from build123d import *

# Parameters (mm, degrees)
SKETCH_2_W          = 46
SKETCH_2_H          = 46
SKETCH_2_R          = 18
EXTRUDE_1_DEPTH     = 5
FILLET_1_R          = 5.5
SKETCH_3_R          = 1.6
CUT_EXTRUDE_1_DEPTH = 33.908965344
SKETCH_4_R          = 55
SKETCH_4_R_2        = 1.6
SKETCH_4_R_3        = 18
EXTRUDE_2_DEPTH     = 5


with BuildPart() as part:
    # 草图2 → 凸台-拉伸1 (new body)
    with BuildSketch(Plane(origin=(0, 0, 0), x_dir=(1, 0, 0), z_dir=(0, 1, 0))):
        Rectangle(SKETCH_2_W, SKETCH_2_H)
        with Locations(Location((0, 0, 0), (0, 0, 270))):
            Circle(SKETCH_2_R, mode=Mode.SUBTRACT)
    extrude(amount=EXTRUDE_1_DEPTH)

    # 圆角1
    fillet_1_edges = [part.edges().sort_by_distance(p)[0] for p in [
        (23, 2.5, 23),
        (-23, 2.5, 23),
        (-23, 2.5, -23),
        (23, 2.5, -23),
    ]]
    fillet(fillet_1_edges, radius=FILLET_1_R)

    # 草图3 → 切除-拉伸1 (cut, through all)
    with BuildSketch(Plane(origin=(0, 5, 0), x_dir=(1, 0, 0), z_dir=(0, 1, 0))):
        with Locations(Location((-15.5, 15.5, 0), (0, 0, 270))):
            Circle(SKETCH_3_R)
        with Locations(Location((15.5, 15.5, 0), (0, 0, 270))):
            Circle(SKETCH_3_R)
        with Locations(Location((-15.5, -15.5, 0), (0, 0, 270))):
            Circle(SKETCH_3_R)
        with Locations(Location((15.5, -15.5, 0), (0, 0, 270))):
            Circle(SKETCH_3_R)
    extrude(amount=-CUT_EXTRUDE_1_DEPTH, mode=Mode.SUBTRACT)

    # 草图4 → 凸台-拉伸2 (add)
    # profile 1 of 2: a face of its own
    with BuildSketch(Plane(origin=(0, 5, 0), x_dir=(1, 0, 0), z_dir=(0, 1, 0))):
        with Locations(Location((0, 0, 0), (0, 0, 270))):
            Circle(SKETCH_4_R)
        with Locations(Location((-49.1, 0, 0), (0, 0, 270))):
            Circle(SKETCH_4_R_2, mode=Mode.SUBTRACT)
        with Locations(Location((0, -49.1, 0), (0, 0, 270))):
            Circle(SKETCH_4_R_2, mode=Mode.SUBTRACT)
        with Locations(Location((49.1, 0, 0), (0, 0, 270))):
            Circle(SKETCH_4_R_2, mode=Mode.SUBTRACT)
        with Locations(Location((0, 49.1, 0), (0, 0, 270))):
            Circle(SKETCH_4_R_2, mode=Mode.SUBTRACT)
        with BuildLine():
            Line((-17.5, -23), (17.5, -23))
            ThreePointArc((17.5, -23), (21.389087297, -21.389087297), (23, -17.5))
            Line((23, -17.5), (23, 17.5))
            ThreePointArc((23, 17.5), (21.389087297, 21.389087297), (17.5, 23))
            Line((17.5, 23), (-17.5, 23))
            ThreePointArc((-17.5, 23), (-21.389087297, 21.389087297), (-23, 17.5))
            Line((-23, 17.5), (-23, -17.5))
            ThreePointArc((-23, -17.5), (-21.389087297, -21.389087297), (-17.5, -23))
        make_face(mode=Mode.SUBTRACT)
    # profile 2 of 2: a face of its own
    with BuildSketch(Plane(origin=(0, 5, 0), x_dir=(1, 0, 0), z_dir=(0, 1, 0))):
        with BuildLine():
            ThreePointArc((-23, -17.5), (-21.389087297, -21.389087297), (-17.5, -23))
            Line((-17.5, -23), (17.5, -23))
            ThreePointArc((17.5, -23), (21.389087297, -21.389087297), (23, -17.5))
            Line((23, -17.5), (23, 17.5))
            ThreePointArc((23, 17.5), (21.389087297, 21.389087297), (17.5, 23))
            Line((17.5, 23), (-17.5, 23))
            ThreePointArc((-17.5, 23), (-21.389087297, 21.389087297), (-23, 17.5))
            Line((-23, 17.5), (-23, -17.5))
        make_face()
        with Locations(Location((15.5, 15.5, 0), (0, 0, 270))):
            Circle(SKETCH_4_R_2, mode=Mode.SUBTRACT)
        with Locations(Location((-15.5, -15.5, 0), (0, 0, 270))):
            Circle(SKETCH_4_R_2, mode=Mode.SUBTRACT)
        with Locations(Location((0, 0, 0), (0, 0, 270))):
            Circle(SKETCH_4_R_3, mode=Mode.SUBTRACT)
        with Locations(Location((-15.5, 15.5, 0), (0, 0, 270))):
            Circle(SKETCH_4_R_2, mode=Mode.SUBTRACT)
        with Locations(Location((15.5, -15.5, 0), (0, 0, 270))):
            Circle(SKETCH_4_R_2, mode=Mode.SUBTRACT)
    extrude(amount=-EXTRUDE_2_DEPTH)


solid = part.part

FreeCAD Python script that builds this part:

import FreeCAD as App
import Part
import Sketcher
Q = App.Units.Quantity


def edges_at(feature, points):
    """Names of the edges that pass closest to the given points."""
    edges = feature.Shape.Edges
    near = lambda p: min(range(len(edges)), key=lambda i: edges[i].distToShape(Part.Vertex(*p))[0])
    return sorted({f"Edge{near(p) + 1}" for p in points})

doc = App.newDocument("Part")
params = doc.addObject("Spreadsheet::Sheet", "Params")
for row, (alias, value) in enumerate([
    ("sketch1_diameter", "36 mm"),
    ("sketch1_width", "46 mm"),
    ("pad1_length", "5 mm"),
    ("fillet_radius", "5.5 mm"),
    ("sketch2_diameter", "3.2 mm"),
    ("sketch3_diameter", "110 mm"),
    ("sketch3_diameter2", "36 mm"),
    ("sketch3_diameter3", "3.2 mm"),
    ("pad2_length", "5 mm"),
], start=1):
    params.set(f"A{row}", alias)
    params.set(f"B{row}", "=" + value)
    params.setAlias(f"B{row}", alias)

body = doc.addObject("PartDesign::Body", "Body")

sketch1 = doc.addObject("Sketcher::SketchObject", "Sketch")
body.addObject(sketch1)
sketch1.AttachmentSupport = (doc.XZ_Plane, [""])
sketch1.MapMode = "FlatFace"
sketch1.addGeometry(Part.LineSegment(App.Vector(-23, -23, 0), App.Vector(-23, 23, 0)), False)
sketch1.addGeometry(Part.LineSegment(App.Vector(-23, 23, 0), App.Vector(23, 23, 0)), False)
sketch1.addGeometry(Part.LineSegment(App.Vector(23, 23, 0), App.Vector(23, -23, 0)), False)
sketch1.addGeometry(Part.LineSegment(App.Vector(23, -23, 0), App.Vector(-23, -23, 0)), False)
sketch1.addGeometry(Part.Circle(App.Vector(0, 0, 0), App.Vector(0, 0, 1), 18), False)
sketch1.addConstraint(Sketcher.Constraint("Coincident", 0, 2, 1, 1))
sketch1.addConstraint(Sketcher.Constraint("Coincident", 1, 2, 2, 1))
sketch1.addConstraint(Sketcher.Constraint("Coincident", 2, 2, 3, 1))
sketch1.addConstraint(Sketcher.Constraint("Coincident", 3, 2, 0, 1))
sketch1.addConstraint(Sketcher.Constraint("Vertical", 0))
sketch1.addConstraint(Sketcher.Constraint("Horizontal", 1))
sketch1.addConstraint(Sketcher.Constraint("Vertical", 2))
sketch1.addConstraint(Sketcher.Constraint("Horizontal", 3))
sketch1.addConstraint(Sketcher.Constraint("Coincident", 4, 3, -1, 1))
sketch1.addConstraint(Sketcher.Constraint("Symmetric", 0, 2, 2, 2, -1, 1))
sketch1.addConstraint(Sketcher.Constraint("Equal", 3, 0))
sketch1.addConstraint(Sketcher.Constraint("Diameter", 4, Q("36 mm")))
sketch1.addConstraint(Sketcher.Constraint("DistanceX", 1, 1, 1, 2, Q("46 mm")))
sketch1.setExpression("Constraints[11]", "Params.sketch1_diameter")
sketch1.setExpression("Constraints[12]", "Params.sketch1_width")
pad1 = doc.addObject("PartDesign::Pad", "Pad")
body.addObject(pad1)
pad1.Profile = sketch1
pad1.setExpression("Length", "Params.pad1_length")
pad1.Reversed = True
doc.recompute()

fillet = doc.addObject("PartDesign::Fillet", "Fillet")
body.addObject(fillet)
fillet.Base = (pad1, edges_at(pad1, [
    (23, 2.5, 23),
    (-23, 2.5, 23),
    (-23, 2.5, -23),
    (23, 2.5, -23),
]))
fillet.setExpression("Radius", "Params.fillet_radius")

sketch2 = doc.addObject("Sketcher::SketchObject", "Sketch001")
body.addObject(sketch2)
sketch2.AttachmentSupport = (doc.XZ_Plane, [""])
sketch2.MapMode = "FlatFace"
sketch2.AttachmentOffset = App.Placement(App.Vector(0, 0, -5), App.Rotation())
sketch2.addGeometry(Part.Circle(App.Vector(-15.5, -15.5, 0), App.Vector(0, 0, 1), 1.6), False)
sketch2.addGeometry(Part.Circle(App.Vector(15.5, -15.5, 0), App.Vector(0, 0, 1), 1.6), False)
sketch2.addGeometry(Part.Circle(App.Vector(-15.5, 15.5, 0), App.Vector(0, 0, 1), 1.6), False)
sketch2.addGeometry(Part.Circle(App.Vector(15.5, 15.5, 0), App.Vector(0, 0, 1), 1.6), False)
sketch2.addConstraint(Sketcher.Constraint("Equal", 0, 1))
sketch2.addConstraint(Sketcher.Constraint("Equal", 1, 2))
sketch2.addConstraint(Sketcher.Constraint("Equal", 2, 3))
sketch2.addConstraint(Sketcher.Constraint("Symmetric", 1, 3, 2, 3, -1, 1))
sketch2.addConstraint(Sketcher.Constraint("Symmetric", 0, 3, 3, 3, -1, 1))
sketch2.addConstraint(Sketcher.Constraint("Symmetric", 0, 3, 1, 3, -2))
sketch2.addConstraint(Sketcher.Constraint("Diameter", 0, Q("3.2 mm")))
sketch2.addConstraint(Sketcher.Constraint("DistanceX", 0, 3, 1, 3, Q("31 mm")))
sketch2.addConstraint(Sketcher.Constraint("DistanceY", 0, 3, 2, 3, Q("31 mm")))
sketch2.setExpression("Constraints[6]", "Params.sketch2_diameter")
pocket1 = doc.addObject("PartDesign::Pocket", "Pocket")
body.addObject(pocket1)
pocket1.Profile = sketch2
pocket1.Type = "ThroughAll"
pocket1.Reversed = True

sketch3 = doc.addObject("Sketcher::SketchObject", "Sketch002")
body.addObject(sketch3)
sketch3.AttachmentSupport = (doc.XZ_Plane, [""])
sketch3.MapMode = "FlatFace"
sketch3.AttachmentOffset = App.Placement(App.Vector(0, 0, -5), App.Rotation())
sketch3.addGeometry(Part.Circle(App.Vector(0, 0, 0), App.Vector(0, 0, 1), 55), False)
sketch3.addGeometry(Part.Circle(App.Vector(0, -49.1, 0), App.Vector(0, 0, 1), 1.6), False)
sketch3.addGeometry(Part.Circle(App.Vector(-49.1, 0, 0), App.Vector(0, 0, 1), 1.6), False)
sketch3.addGeometry(Part.Circle(App.Vector(49.1, 0, 0), App.Vector(0, 0, 1), 1.6), False)
sketch3.addGeometry(Part.Circle(App.Vector(0, 49.1, 0), App.Vector(0, 0, 1), 1.6), False)
sketch3.addGeometry(Part.Circle(App.Vector(-15.5, 15.5, 0), App.Vector(0, 0, 1), 1.6), False)
sketch3.addGeometry(Part.Circle(App.Vector(-15.5, -15.5, 0), App.Vector(0, 0, 1), 1.6), False)
sketch3.addGeometry(Part.Circle(App.Vector(15.5, -15.5, 0), App.Vector(0, 0, 1), 1.6), False)
sketch3.addGeometry(Part.Circle(App.Vector(15.5, 15.5, 0), App.Vector(0, 0, 1), 1.6), False)
sketch3.addGeometry(Part.Circle(App.Vector(0, 0, 0), App.Vector(0, 0, 1), 18), False)
sketch3.addConstraint(Sketcher.Constraint("Coincident", 0, 3, -1, 1))
sketch3.addConstraint(Sketcher.Constraint("Coincident", 9, 3, -1, 1))
sketch3.addConstraint(Sketcher.Constraint("Equal", 1, 2))
sketch3.addConstraint(Sketcher.Constraint("Equal", 2, 3))
sketch3.addConstraint(Sketcher.Constraint("Equal", 3, 4))
sketch3.addConstraint(Sketcher.Constraint("Equal", 4, 5))
sketch3.addConstraint(Sketcher.Constraint("Equal", 5, 6))
sketch3.addConstraint(Sketcher.Constraint("Equal", 6, 7))
sketch3.addConstraint(Sketcher.Constraint("Equal", 7, 8))
sketch3.addConstraint(Sketcher.Constraint("Symmetric", 2, 3, 3, 3, -1, 1))
sketch3.addConstraint(Sketcher.Constraint("Symmetric", 1, 3, 4, 3, -1, 1))
sketch3.addConstraint(Sketcher.Constraint("Symmetric", 5, 3, 7, 3, -1, 1))
sketch3.addConstraint(Sketcher.Constraint("Symmetric", 6, 3, 8, 3, -1, 1))
sketch3.addConstraint(Sketcher.Constraint("Symmetric", 6, 3, 7, 3, -2))
sketch3.addConstraint(Sketcher.Constraint("PointOnObject", 1, 3, -2))
sketch3.addConstraint(Sketcher.Constraint("PointOnObject", 2, 3, -1))
sketch3.addConstraint(Sketcher.Constraint("Diameter", 0, Q("110 mm")))
sketch3.addConstraint(Sketcher.Constraint("Diameter", 9, Q("36 mm")))
sketch3.addConstraint(Sketcher.Constraint("Diameter", 1, Q("3.2 mm")))
sketch3.addConstraint(Sketcher.Constraint("DistanceY", 6, 3, 5, 3, Q("31 mm")))
sketch3.addConstraint(Sketcher.Constraint("DistanceX", 6, 3, 7, 3, Q("31 mm")))
sketch3.addConstraint(Sketcher.Constraint("DistanceY", 1, 3, -1, 1, Q("49.1 mm")))
sketch3.addConstraint(Sketcher.Constraint("DistanceX", 2, 3, -1, 1, Q("49.1 mm")))
sketch3.setExpression("Constraints[16]", "Params.sketch3_diameter")
sketch3.setExpression("Constraints[17]", "Params.sketch3_diameter2")
sketch3.setExpression("Constraints[18]", "Params.sketch3_diameter3")
pad2 = doc.addObject("PartDesign::Pad", "Pad001")
body.addObject(pad2)
pad2.Profile = sketch3
pad2.setExpression("Length", "Params.pad2_length")

doc.recompute()
